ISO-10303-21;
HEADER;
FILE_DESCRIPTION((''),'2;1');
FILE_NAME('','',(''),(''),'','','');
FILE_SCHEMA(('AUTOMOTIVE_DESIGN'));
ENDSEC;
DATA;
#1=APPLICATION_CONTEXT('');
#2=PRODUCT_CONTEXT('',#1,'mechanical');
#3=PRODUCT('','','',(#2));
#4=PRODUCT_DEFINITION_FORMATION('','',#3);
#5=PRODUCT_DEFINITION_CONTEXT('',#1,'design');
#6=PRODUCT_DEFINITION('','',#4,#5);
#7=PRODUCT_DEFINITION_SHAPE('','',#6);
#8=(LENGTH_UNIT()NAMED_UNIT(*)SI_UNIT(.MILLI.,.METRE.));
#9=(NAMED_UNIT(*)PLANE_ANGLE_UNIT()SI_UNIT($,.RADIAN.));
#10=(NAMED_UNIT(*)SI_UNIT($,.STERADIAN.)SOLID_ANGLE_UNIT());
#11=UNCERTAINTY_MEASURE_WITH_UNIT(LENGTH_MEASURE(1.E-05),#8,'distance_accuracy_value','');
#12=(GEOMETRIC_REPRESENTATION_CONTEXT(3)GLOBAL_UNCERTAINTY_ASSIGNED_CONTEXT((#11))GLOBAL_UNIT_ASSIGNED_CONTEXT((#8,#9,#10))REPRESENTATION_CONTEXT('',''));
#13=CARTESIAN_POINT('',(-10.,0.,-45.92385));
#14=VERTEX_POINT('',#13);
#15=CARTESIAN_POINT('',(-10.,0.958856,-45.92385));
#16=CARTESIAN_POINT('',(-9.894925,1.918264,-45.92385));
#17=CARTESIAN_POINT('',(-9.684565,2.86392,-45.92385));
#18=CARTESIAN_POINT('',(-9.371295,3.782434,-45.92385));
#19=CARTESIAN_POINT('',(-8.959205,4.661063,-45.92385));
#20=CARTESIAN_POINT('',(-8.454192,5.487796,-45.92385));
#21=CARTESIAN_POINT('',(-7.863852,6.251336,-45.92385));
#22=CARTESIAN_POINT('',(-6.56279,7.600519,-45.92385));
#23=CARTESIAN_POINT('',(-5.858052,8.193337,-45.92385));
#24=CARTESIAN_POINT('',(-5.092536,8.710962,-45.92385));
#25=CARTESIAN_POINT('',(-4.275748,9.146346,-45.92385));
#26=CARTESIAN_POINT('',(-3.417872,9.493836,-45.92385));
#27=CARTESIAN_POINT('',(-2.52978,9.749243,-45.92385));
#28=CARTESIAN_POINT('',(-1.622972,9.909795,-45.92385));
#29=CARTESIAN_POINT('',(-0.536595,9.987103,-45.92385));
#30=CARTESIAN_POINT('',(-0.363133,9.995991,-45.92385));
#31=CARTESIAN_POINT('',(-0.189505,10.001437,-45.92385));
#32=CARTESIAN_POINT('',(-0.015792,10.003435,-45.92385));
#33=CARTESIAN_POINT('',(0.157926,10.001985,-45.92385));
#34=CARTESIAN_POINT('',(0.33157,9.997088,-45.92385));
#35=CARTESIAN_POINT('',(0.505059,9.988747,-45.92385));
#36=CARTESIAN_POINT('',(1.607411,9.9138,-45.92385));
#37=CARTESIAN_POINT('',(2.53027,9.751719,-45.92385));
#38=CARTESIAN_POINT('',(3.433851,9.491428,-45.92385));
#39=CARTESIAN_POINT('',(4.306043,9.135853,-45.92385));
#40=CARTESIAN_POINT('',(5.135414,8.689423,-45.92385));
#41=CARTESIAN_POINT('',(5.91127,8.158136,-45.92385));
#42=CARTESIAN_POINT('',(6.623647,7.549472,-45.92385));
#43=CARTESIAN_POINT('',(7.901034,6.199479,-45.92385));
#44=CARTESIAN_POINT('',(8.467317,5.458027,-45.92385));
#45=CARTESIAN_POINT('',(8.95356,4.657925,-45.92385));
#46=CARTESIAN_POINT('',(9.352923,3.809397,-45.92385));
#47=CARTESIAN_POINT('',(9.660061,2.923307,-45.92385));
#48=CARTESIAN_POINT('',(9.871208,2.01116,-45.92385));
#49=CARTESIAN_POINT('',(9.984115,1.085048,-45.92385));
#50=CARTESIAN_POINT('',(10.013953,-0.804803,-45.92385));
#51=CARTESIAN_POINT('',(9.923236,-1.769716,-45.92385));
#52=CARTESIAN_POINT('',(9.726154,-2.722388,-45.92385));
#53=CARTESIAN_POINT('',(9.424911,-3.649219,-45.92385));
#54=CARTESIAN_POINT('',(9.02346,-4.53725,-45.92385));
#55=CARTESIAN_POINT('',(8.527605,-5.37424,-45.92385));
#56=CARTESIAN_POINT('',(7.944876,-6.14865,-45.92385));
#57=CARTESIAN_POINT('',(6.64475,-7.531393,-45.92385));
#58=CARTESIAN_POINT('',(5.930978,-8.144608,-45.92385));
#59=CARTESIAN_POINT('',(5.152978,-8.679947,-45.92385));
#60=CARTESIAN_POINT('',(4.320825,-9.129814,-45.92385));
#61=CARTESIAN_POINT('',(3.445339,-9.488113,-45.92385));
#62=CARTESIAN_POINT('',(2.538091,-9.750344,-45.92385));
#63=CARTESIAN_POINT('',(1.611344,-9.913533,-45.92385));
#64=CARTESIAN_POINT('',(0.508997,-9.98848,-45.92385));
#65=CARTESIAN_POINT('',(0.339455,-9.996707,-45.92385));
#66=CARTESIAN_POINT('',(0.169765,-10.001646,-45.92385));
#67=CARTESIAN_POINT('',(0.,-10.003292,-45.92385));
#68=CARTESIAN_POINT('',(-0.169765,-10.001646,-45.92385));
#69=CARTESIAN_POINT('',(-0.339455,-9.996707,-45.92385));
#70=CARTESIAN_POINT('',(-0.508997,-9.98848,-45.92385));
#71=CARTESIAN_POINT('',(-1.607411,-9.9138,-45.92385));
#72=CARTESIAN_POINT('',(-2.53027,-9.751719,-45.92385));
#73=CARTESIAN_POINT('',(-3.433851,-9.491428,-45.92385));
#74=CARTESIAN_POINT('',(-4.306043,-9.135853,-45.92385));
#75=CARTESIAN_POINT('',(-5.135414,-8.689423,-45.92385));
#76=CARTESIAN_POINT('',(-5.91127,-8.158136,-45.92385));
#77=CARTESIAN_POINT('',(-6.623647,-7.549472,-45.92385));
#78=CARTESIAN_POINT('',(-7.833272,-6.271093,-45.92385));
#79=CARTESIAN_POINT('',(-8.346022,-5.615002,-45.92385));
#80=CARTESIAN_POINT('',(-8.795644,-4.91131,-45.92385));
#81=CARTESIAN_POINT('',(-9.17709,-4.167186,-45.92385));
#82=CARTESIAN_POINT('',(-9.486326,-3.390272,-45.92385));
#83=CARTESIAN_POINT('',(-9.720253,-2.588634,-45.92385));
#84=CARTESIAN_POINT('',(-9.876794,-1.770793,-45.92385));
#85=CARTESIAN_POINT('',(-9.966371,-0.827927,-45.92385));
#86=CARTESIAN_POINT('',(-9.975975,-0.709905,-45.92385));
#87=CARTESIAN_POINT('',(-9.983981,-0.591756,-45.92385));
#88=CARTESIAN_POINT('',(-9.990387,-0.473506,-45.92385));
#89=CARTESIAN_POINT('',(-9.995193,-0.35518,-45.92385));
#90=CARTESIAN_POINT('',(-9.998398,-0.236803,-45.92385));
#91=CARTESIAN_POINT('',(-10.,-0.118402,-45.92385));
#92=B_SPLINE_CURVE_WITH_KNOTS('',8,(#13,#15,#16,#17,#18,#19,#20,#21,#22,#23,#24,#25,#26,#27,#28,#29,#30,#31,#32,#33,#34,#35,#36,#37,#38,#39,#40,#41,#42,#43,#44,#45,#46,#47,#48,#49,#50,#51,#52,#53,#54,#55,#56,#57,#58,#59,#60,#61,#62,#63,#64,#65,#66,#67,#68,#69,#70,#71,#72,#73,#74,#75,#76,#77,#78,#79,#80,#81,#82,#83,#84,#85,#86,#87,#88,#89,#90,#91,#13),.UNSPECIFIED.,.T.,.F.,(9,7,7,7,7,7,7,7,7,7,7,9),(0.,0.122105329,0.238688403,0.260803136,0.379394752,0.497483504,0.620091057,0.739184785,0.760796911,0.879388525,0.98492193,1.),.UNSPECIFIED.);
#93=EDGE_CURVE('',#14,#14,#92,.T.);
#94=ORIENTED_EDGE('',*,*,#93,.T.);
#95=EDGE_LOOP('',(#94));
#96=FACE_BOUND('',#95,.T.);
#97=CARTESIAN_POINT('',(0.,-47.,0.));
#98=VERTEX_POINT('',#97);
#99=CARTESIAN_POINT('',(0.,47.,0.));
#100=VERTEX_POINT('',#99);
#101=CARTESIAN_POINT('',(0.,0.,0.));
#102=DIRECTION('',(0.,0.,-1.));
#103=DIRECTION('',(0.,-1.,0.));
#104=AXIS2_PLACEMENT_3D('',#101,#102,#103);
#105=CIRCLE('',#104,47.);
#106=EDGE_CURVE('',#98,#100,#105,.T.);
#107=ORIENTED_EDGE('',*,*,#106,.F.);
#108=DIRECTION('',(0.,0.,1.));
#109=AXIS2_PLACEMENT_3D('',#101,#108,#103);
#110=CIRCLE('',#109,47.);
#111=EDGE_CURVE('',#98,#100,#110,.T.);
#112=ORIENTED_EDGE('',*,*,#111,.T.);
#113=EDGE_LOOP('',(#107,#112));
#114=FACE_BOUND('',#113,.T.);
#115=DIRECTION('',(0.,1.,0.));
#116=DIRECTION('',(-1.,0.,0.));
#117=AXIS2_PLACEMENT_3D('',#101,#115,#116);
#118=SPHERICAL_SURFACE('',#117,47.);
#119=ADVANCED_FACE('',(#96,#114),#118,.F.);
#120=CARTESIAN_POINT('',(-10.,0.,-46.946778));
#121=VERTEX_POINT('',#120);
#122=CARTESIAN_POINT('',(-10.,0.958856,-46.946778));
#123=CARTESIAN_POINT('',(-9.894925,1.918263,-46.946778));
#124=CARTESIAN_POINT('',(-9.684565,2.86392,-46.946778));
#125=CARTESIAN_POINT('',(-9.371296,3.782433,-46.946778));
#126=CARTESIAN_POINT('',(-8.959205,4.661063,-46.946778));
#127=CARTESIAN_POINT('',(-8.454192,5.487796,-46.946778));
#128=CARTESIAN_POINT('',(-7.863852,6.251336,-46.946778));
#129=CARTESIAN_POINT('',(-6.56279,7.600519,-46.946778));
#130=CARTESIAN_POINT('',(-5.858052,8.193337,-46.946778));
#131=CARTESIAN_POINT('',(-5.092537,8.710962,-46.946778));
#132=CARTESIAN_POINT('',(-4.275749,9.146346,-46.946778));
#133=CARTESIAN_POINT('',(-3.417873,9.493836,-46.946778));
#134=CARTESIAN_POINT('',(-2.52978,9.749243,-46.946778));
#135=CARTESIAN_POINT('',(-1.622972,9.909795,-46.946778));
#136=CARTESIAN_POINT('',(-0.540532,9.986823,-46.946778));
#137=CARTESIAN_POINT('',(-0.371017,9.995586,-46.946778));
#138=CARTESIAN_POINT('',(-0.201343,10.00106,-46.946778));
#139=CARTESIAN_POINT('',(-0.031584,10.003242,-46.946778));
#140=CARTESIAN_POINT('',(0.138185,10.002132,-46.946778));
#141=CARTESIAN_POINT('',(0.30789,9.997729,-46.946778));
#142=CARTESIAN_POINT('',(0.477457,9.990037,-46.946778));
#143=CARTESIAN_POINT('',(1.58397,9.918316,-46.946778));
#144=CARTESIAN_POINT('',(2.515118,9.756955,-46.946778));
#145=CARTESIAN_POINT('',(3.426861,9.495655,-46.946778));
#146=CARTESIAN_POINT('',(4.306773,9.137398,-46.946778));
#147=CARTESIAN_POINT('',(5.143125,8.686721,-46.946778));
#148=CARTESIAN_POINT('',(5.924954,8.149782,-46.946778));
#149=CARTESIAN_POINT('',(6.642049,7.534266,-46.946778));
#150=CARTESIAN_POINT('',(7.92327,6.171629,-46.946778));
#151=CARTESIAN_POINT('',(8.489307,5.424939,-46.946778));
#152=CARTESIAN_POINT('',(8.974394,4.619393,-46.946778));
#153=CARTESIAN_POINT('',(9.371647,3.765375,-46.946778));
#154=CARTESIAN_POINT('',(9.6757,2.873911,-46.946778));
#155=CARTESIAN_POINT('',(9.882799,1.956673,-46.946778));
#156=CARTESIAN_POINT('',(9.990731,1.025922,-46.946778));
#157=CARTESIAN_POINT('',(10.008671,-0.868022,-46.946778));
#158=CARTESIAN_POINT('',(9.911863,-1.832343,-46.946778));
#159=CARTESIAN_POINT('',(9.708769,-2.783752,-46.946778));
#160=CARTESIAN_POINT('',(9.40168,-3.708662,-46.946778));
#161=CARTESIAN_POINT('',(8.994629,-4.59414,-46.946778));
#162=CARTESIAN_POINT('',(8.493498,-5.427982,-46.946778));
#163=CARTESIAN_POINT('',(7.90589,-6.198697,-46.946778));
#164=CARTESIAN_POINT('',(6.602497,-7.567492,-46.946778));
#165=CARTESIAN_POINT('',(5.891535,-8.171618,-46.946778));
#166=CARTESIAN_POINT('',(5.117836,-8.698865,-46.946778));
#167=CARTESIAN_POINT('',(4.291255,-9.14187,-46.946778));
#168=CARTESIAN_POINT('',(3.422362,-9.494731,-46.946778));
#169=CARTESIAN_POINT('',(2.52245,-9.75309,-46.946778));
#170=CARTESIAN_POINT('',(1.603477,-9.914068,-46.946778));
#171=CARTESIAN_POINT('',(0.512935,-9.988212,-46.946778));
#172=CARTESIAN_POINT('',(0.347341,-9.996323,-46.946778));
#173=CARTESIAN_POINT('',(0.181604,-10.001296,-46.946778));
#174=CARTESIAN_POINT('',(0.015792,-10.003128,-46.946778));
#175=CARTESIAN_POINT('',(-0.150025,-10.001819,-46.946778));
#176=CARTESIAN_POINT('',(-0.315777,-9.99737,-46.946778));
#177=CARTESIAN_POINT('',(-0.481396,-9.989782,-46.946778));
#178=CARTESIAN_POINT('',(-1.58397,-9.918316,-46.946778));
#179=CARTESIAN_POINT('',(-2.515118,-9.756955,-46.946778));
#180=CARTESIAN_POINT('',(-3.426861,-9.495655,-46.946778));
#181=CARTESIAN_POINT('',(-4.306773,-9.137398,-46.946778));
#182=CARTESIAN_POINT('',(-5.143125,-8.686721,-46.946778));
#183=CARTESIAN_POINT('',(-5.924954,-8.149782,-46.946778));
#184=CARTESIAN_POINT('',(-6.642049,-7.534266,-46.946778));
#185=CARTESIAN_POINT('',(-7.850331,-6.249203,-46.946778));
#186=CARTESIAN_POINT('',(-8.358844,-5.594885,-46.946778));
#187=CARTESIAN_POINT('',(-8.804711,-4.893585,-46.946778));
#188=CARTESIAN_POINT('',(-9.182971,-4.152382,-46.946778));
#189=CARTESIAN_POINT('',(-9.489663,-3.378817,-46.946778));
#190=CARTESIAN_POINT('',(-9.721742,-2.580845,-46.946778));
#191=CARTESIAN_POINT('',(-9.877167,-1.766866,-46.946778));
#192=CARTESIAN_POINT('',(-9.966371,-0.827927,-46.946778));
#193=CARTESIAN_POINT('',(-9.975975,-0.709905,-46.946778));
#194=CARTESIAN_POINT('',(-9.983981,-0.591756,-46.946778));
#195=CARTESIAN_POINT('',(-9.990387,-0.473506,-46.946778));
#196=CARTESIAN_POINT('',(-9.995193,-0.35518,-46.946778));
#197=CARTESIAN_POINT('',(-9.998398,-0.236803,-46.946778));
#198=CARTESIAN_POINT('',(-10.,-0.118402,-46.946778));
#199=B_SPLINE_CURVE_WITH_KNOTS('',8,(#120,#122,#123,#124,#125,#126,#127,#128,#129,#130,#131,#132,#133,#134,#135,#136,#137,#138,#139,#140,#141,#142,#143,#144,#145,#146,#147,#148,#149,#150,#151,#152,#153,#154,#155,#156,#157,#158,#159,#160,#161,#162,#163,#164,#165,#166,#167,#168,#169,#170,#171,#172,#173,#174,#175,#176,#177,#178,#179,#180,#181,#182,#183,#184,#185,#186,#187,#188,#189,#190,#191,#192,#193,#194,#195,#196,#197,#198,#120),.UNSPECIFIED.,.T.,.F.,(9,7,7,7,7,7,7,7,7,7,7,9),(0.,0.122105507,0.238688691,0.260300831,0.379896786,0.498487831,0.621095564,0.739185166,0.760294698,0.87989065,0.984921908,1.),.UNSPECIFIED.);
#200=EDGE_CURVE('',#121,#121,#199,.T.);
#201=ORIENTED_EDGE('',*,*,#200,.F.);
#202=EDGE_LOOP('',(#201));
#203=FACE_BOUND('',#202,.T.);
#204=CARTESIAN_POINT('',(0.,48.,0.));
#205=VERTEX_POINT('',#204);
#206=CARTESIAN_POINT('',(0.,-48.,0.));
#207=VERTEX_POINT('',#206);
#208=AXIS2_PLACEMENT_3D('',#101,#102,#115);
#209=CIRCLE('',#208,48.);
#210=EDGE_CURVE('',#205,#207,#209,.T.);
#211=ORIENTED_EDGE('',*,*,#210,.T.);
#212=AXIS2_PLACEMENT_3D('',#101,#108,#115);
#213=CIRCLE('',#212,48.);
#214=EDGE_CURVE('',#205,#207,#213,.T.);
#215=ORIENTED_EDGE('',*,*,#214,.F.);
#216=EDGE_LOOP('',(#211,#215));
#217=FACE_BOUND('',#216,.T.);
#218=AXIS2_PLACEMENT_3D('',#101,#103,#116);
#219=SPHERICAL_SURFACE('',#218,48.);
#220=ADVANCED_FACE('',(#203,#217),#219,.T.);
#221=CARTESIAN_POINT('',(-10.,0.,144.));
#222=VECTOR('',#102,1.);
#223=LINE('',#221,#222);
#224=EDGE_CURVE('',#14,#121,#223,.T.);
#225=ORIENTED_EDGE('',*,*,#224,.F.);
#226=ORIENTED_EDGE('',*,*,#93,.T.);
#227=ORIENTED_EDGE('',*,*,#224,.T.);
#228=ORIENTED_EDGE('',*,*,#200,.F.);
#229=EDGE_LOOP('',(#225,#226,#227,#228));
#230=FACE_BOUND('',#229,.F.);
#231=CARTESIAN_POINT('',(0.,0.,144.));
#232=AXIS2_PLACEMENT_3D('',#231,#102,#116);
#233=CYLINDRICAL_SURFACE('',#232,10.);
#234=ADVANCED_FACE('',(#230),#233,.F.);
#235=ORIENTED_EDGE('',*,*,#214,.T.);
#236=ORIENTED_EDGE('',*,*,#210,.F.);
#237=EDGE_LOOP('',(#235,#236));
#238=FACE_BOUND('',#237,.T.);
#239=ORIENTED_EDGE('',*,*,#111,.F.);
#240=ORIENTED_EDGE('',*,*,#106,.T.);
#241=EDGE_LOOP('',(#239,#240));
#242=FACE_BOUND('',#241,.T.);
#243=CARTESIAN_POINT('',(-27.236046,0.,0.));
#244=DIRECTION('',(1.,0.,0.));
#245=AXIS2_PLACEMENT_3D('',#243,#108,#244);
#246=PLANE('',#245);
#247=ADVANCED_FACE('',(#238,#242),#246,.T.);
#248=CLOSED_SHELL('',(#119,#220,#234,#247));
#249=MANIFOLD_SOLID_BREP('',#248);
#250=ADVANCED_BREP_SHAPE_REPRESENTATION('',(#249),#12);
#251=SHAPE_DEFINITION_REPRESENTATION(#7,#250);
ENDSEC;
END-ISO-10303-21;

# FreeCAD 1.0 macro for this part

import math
import FreeCAD as App
import Part
import Sketcher
from FreeCAD import Vector

doc = App.newDocument("Part")
body = doc.addObject("PartDesign::Body", "Body")

sketch1 = body.newObject("Sketcher::SketchObject", "Sketch")
sketch1.AttachmentSupport = (doc.getObject("XY_Plane"), [""])
sketch1.MapMode = "FlatFace"
sketch1.addGeometry([
    Part.LineSegment(Vector(0, 47, 0), Vector(0, 48, 0)),
    Part.ArcOfCircle(Part.Circle(Vector(0, 0, 0), Vector(0, 0, 1), 48), math.radians(90), math.radians(270)),
    Part.LineSegment(Vector(0, -48, 0), Vector(0, -47, 0)),
    Part.ArcOfCircle(Part.Circle(Vector(0, 0, 0), Vector(0, 0, 1), 47), math.radians(90), math.radians(270)),
], False)
sketch1.addConstraint([
    Sketcher.Constraint("Coincident", 0, 2, 1, 1),
    Sketcher.Constraint("Coincident", 1, 2, 2, 1),
    Sketcher.Constraint("Coincident", 2, 2, 3, 2),
    Sketcher.Constraint("Coincident", 3, 1, 0, 1),
    Sketcher.Constraint("Vertical", 0),
    Sketcher.Constraint("Vertical", 2),
    Sketcher.Constraint("Coincident", 1, 3, -1, 1),
    Sketcher.Constraint("Coincident", 3, 3, -1, 1),
    Sketcher.Constraint("PointOnObject", 0, 2, -2),
    Sketcher.Constraint("PointOnObject", 1, 2, -2),
    Sketcher.Constraint("Radius", 1, 48.0),
    Sketcher.Constraint("Radius", 3, 47.0),
])
revolution = body.newObject("PartDesign::Revolution", "Revolution")
revolution.Profile = sketch1
revolution.ReferenceAxis = (sketch1, ["V_Axis"])
revolution.Angle = 180
revolution.Reversed = True

sketch2 = body.newObject("Sketcher::SketchObject", "Sketch001")
sketch2.AttachmentSupport = (doc.getObject("XY_Plane"), [""])
sketch2.MapMode = "FlatFace"
sketch2.addGeometry(Part.Circle(Vector(0, 0, 0), Vector(0, 0, 1), 10), False)
sketch2.addConstraint([
    Sketcher.Constraint("Coincident", 0, 3, -1, 1),
    Sketcher.Constraint("Diameter", 0, 20.0),
])
doc.recompute()
hole = body.newObject("PartDesign::Hole", "Hole")
hole.Profile = sketch2
hole.ThreadType = "None"
hole.Diameter = 20
hole.DepthType = "ThroughAll"

doc.recompute()
